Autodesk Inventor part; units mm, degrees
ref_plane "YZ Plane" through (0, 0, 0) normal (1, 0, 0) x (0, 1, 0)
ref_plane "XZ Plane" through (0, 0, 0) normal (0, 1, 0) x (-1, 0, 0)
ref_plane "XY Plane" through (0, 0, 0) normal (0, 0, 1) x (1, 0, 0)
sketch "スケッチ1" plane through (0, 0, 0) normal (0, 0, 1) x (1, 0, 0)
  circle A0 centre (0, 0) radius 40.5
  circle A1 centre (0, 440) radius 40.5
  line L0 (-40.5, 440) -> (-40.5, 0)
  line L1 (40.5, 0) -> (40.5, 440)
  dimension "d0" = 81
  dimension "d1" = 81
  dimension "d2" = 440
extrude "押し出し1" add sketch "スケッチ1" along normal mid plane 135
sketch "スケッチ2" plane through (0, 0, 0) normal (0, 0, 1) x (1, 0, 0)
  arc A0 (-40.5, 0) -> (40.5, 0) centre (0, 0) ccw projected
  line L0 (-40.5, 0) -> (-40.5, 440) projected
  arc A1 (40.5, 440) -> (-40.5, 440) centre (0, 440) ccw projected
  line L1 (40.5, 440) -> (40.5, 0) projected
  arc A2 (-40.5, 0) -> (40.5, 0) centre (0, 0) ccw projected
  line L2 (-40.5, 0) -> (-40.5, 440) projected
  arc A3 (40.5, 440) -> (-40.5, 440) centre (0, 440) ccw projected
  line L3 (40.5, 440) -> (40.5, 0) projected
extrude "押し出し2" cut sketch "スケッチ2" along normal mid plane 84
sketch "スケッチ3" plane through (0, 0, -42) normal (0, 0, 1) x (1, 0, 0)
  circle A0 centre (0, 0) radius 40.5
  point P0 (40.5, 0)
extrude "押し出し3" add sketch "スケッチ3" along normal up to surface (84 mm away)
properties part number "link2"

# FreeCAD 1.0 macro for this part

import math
import FreeCAD as App
import Part
import Sketcher
Q = App.Units.Quantity

doc = App.newDocument("Part")
body = doc.addObject("PartDesign::Body", "Body")
body.AllowCompound = True

sketch1 = body.newObject("Sketcher::SketchObject", "Sketch")
sketch1.AttachmentSupport = (doc.getObject("XY_Plane"), [""])
sketch1.MapMode = "FlatFace"
sketch1.addGeometry(Part.ArcOfCircle(Part.Circle(App.Vector(0, 0, 0), App.Vector(0, 0, 1), 40), math.radians(180), math.radians(360)), False)
sketch1.addGeometry(Part.LineSegment(App.Vector(40, 0, 0), App.Vector(40, 440, 0)), False)
sketch1.addGeometry(Part.ArcOfCircle(Part.Circle(App.Vector(0, 440, 0), App.Vector(0, 0, 1), 40), math.radians(0), math.radians(180)), False)
sketch1.addGeometry(Part.LineSegment(App.Vector(-40, 440, 0), App.Vector(-40, 0, 0)), False)
sketch1.addConstraint(Sketcher.Constraint("Tangent", 0, 2, 1, 1))
sketch1.addConstraint(Sketcher.Constraint("Tangent", 1, 2, 2, 1))
sketch1.addConstraint(Sketcher.Constraint("Tangent", 2, 2, 3, 1))
sketch1.addConstraint(Sketcher.Constraint("Tangent", 3, 2, 0, 1))
sketch1.addConstraint(Sketcher.Constraint("Vertical", 1))
sketch1.addConstraint(Sketcher.Constraint("Vertical", 3))
sketch1.addConstraint(Sketcher.Constraint("Coincident", 0, 3, -1, 1))
sketch1.addConstraint(Sketcher.Constraint("Radius", 0, Q("40.5 mm")))
sketch1.addConstraint(Sketcher.Constraint("DistanceY", 1, 1, 1, 2, Q("440 mm")))
pad1 = body.newObject("PartDesign::Pad", "Pad")
pad1.Profile = sketch1
pad1.Length = 135
pad1.Midplane = True

sketch2 = body.newObject("Sketcher::SketchObject", "Sketch001")
sketch2.AttachmentSupport = (doc.getObject("XY_Plane"), [""])
sketch2.MapMode = "FlatFace"
sketch2.addGeometry(Part.LineSegment(App.Vector(-40, 440, 0), App.Vector(-40, 0, 0)), False)
sketch2.addGeometry(Part.ArcOfCircle(Part.Circle(App.Vector(0, 0, 0), App.Vector(0, 0, 1), 40), math.radians(180), math.radians(360)), False)
sketch2.addGeometry(Part.LineSegment(App.Vector(40, 0, 0), App.Vector(40, 440, 0)), False)
sketch2.addGeometry(Part.ArcOfCircle(Part.Circle(App.Vector(0, 440, 0), App.Vector(0, 0, 1), 40), math.radians(0), math.radians(180)), False)
sketch2.addConstraint(Sketcher.Constraint("Tangent", 0, 2, 1, 1))
sketch2.addConstraint(Sketcher.Constraint("Tangent", 1, 2, 2, 1))
sketch2.addConstraint(Sketcher.Constraint("Tangent", 2, 2, 3, 1))
sketch2.addConstraint(Sketcher.Constraint("Tangent", 3, 2, 0, 1))
sketch2.addConstraint(Sketcher.Constraint("Vertical", 0))
sketch2.addConstraint(Sketcher.Constraint("Vertical", 2))
sketch2.addConstraint(Sketcher.Constraint("Coincident", 1, 3, -1, 1))
sketch2.addConstraint(Sketcher.Constraint("Radius", 1, Q("40.5 mm")))
sketch2.addConstraint(Sketcher.Constraint("DistanceY", 0, 2, 0, 1, Q("440 mm")))
pocket1 = body.newObject("PartDesign::Pocket", "Pocket")
pocket1.Profile = sketch2
pocket1.Length = 84
pocket1.Midplane = True

sketch3 = body.newObject("Sketcher::SketchObject", "Sketch002")
sketch3.AttachmentSupport = (doc.getObject("XY_Plane"), [""])
sketch3.MapMode = "FlatFace"
sketch3.AttachmentOffset = App.Placement(App.Vector(0, 0, -42), App.Rotation())
sketch3.addGeometry(Part.Circle(App.Vector(0, 0, 0), App.Vector(0, 0, 1), 40), False)
sketch3.addConstraint(Sketcher.Constraint("Coincident", 0, 3, -1, 1))
sketch3.addConstraint(Sketcher.Constraint("Diameter", 0, Q("81 mm")))
pad2 = body.newObject("PartDesign::Pad", "Pad001")
pad2.Profile = sketch3
pad2.Length = 84

doc.recompute()
